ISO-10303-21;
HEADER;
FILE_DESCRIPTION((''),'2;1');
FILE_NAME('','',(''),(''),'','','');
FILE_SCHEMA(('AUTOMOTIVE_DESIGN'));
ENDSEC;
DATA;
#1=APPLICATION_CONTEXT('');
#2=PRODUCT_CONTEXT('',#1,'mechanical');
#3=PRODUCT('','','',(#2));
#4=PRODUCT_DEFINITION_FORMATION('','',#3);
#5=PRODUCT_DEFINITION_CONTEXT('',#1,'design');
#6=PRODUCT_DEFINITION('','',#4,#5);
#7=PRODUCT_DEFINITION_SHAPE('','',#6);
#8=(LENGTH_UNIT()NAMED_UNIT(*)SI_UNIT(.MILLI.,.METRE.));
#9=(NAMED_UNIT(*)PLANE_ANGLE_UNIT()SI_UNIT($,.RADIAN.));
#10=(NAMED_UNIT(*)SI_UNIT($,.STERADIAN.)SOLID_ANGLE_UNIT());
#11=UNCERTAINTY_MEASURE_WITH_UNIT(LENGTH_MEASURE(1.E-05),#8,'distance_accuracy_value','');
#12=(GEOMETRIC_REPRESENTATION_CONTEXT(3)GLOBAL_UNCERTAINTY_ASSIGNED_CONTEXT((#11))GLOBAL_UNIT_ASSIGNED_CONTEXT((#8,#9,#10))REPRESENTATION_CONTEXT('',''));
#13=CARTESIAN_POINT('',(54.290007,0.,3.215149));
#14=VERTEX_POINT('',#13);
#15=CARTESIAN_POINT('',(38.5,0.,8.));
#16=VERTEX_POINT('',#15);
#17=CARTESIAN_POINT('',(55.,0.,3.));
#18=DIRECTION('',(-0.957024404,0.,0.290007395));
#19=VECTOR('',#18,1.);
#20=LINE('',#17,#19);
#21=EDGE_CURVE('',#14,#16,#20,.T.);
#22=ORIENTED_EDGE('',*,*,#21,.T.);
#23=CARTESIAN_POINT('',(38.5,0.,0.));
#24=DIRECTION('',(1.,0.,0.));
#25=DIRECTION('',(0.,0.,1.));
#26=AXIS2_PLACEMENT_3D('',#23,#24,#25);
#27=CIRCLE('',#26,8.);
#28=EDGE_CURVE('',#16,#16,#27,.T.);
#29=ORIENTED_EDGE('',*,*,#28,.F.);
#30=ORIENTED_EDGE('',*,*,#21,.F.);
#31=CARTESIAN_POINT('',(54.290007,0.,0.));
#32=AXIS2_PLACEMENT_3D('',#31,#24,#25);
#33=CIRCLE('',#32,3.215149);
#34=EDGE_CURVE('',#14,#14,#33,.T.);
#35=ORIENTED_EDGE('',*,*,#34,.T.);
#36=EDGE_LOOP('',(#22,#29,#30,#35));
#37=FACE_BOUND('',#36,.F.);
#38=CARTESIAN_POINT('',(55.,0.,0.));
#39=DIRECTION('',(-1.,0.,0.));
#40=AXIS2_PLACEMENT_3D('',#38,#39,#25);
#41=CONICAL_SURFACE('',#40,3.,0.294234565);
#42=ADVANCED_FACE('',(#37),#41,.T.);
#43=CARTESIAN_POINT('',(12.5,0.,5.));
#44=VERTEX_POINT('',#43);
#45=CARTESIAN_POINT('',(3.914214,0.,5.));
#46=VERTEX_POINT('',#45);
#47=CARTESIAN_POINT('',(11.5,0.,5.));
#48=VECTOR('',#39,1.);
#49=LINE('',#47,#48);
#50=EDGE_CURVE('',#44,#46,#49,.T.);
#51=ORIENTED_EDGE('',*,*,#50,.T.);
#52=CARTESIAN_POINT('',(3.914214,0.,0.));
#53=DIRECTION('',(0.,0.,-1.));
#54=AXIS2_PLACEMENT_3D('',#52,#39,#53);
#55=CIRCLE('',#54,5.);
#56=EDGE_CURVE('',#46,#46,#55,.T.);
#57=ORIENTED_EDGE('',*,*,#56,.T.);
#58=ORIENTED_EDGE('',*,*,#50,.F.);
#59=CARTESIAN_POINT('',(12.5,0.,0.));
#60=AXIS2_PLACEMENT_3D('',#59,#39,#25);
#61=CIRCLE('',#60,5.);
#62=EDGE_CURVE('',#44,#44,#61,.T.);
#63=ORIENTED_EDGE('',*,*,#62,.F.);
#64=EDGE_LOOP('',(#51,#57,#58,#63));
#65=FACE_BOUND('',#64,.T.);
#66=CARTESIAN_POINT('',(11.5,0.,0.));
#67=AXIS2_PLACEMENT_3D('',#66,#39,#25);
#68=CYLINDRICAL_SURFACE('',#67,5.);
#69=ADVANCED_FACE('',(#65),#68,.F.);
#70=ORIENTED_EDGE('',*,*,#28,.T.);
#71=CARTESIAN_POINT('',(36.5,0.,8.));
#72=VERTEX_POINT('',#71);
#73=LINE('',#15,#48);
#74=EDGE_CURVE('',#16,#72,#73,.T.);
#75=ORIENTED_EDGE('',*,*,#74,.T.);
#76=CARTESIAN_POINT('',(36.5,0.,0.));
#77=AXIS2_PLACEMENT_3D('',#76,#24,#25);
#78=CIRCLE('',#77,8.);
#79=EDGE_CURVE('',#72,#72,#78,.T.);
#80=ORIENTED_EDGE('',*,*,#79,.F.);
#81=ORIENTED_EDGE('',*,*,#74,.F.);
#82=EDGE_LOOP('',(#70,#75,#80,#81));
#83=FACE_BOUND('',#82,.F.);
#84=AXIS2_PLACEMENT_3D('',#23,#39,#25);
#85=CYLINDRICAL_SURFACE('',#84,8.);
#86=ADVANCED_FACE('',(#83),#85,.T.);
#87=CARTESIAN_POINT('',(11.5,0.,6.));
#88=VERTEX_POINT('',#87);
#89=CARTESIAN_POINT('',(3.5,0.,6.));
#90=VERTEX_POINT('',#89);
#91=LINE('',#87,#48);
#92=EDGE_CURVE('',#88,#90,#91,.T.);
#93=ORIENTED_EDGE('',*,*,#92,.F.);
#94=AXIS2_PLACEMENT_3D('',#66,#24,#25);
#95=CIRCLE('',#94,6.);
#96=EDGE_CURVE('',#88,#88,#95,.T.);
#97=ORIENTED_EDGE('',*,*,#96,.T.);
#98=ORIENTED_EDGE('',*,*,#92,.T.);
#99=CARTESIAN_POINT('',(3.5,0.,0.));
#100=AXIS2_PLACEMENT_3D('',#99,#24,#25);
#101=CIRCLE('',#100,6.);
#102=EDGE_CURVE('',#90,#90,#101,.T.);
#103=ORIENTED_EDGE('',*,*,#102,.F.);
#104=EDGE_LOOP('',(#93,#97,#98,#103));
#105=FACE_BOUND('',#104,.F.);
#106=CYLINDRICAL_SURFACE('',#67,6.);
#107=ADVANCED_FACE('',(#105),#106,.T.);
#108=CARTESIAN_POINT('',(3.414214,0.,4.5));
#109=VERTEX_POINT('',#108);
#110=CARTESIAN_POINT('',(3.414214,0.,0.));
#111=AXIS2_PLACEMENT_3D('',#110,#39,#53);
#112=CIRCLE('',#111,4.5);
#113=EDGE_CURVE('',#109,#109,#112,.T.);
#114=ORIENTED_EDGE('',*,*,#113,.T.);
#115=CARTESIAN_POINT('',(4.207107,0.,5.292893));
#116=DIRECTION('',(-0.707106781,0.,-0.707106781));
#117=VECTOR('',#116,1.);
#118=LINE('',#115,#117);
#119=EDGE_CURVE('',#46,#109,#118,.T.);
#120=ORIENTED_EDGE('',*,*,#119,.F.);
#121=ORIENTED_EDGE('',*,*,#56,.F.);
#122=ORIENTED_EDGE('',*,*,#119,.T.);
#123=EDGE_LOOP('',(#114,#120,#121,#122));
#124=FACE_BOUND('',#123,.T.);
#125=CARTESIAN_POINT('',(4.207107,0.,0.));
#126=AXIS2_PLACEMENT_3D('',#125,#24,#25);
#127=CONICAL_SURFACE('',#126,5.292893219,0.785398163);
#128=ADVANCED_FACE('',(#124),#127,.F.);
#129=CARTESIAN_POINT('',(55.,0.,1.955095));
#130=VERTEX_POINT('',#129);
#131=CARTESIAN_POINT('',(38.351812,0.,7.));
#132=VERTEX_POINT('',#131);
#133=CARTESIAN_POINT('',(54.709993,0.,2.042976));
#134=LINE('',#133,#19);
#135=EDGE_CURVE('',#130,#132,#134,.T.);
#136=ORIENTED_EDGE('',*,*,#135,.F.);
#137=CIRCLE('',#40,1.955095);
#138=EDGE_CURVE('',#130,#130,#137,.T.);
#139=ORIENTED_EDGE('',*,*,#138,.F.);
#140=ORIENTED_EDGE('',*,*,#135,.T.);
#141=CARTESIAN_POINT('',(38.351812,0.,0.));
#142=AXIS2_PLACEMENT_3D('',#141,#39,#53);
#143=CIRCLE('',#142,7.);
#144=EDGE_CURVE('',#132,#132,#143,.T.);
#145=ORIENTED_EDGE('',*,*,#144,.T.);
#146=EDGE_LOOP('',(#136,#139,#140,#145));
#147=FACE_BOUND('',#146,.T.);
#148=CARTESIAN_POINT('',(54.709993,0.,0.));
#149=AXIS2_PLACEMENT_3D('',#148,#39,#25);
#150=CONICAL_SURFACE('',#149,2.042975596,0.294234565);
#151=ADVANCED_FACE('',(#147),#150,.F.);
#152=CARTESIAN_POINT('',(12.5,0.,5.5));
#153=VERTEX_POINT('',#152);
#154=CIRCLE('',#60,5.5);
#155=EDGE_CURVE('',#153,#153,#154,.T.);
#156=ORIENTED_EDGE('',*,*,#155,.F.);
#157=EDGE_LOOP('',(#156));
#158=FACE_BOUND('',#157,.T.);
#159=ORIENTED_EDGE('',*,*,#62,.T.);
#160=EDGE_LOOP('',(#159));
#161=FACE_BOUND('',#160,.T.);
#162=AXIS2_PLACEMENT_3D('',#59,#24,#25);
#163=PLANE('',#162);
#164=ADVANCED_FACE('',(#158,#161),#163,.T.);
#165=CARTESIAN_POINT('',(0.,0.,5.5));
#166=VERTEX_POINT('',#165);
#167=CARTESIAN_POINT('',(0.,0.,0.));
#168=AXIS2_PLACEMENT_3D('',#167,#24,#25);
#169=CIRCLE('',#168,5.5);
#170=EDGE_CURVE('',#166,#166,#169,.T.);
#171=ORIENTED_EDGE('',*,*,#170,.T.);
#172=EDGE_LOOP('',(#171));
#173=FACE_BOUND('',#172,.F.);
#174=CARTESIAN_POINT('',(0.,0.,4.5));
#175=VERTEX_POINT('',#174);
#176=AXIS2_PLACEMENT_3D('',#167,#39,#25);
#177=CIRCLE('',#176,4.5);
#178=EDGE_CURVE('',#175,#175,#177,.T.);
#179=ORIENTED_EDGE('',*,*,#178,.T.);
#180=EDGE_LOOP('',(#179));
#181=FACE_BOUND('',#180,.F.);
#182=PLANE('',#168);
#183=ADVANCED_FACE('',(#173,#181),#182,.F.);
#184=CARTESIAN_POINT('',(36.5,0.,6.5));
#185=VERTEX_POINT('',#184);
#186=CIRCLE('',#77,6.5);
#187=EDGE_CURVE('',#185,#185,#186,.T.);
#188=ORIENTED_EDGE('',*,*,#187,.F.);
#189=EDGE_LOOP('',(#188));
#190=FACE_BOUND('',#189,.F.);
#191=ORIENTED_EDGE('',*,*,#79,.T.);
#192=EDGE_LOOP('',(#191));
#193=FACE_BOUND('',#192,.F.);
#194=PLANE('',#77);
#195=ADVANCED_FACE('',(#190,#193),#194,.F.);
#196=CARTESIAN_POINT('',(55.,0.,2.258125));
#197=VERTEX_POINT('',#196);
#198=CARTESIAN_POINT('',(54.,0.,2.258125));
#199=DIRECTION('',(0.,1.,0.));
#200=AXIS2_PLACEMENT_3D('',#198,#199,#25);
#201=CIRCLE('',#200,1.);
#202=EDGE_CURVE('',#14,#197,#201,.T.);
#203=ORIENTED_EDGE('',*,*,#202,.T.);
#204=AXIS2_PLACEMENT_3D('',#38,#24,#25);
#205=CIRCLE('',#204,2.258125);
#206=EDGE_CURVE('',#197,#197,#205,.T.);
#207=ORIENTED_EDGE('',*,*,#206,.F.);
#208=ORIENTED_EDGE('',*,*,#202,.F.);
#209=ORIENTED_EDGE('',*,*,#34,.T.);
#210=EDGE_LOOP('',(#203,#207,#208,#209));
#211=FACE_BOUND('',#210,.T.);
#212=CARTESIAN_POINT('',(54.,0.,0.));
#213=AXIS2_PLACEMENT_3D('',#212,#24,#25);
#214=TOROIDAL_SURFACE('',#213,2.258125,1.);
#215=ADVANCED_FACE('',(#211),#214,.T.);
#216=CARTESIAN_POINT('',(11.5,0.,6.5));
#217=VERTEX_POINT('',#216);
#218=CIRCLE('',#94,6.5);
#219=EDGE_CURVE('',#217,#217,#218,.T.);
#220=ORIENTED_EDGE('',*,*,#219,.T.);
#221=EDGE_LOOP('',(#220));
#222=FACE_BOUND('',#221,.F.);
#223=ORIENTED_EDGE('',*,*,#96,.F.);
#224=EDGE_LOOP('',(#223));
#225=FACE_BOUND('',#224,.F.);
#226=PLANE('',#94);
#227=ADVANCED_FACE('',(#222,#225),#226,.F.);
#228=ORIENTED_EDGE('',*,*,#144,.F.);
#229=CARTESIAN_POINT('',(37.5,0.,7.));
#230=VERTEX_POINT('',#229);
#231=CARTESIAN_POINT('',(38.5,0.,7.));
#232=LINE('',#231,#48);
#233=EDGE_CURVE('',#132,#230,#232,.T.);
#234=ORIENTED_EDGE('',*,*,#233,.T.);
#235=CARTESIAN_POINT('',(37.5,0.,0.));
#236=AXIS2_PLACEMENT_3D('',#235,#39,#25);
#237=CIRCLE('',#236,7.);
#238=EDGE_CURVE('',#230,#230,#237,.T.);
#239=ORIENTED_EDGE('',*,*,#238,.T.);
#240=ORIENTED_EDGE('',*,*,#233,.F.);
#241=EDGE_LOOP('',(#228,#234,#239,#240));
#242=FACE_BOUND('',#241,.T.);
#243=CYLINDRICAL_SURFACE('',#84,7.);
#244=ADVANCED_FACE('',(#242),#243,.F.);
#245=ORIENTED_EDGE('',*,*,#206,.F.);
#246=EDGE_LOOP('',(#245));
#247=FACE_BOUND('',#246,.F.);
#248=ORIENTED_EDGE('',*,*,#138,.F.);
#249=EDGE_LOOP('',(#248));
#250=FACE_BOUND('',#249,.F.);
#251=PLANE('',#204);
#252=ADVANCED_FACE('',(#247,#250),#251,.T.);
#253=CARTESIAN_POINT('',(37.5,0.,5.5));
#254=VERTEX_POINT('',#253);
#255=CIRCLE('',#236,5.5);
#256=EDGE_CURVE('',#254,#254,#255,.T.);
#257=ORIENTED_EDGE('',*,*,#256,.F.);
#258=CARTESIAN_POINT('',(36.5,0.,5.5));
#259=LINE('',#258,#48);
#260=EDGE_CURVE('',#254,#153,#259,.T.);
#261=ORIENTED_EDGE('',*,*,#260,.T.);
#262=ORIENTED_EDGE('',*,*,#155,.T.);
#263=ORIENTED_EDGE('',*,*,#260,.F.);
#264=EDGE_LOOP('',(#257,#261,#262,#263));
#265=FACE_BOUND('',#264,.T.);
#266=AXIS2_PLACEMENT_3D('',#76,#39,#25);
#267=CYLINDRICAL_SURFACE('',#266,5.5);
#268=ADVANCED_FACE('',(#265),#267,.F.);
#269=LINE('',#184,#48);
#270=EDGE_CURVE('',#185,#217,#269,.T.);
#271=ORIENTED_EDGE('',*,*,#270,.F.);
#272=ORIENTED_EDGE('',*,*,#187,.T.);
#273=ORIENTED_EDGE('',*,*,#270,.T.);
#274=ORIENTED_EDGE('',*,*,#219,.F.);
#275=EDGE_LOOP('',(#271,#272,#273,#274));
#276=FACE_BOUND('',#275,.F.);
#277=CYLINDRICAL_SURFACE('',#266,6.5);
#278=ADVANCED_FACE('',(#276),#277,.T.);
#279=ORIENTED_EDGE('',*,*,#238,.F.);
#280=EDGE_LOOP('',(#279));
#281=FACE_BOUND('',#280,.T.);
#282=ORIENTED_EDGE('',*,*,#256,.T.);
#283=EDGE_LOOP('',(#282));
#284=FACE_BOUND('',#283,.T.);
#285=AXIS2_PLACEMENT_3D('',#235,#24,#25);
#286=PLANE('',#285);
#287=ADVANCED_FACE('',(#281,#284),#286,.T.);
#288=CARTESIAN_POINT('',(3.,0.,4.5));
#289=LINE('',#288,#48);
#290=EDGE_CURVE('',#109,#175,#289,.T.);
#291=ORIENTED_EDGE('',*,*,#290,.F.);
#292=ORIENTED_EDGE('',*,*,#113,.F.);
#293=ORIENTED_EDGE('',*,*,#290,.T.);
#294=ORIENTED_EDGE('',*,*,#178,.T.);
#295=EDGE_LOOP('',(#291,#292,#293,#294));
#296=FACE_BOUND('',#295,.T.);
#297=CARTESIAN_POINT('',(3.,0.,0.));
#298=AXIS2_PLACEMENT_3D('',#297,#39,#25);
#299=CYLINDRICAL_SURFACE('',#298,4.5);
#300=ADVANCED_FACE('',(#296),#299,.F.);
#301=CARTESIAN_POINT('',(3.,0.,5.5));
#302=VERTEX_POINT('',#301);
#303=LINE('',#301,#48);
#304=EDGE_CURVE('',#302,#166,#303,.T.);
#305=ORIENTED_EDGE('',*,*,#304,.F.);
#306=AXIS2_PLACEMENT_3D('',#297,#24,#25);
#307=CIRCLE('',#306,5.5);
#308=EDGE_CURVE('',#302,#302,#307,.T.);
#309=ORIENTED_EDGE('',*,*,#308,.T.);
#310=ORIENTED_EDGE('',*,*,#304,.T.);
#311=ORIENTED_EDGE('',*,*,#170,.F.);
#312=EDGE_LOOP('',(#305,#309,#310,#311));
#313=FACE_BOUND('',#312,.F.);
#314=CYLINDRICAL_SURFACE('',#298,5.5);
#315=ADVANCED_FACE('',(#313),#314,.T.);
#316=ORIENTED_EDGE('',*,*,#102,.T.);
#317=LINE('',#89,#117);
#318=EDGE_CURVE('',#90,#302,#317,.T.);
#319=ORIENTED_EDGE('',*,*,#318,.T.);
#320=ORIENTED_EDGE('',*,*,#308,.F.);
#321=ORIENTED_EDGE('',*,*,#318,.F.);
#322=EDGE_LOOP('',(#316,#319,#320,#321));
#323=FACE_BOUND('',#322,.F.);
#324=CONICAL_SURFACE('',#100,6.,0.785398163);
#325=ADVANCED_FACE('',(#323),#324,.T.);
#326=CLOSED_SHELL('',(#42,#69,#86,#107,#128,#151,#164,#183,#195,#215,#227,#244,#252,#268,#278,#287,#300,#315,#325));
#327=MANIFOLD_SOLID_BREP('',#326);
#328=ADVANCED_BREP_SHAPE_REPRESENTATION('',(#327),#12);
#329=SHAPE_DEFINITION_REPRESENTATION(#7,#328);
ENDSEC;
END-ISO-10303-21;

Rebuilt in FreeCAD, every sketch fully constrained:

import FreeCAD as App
import Part
import Sketcher

V = App.Vector
Q = App.Units.Quantity


def edges_at(feature, points):
    """Names of the edges that pass closest to the given points."""
    edges = feature.Shape.Edges
    near = lambda p: min(range(len(edges)), key=lambda i: edges[i].distToShape(Part.Vertex(*p))[0])
    return sorted({f"Edge{near(p) + 1}" for p in points})


def faces_at(feature, points):
    """Names of the faces that lie closest to the given points."""
    faces = feature.Shape.Faces
    near = lambda p: min(range(len(faces)), key=lambda i: faces[i].distToShape(Part.Vertex(*p))[0])
    return sorted({f"Face{near(p) + 1}" for p in points})

doc = App.newDocument("Part")
body = doc.addObject("PartDesign::Body", "Body")

# Sketch on XZ plane
sketch1 = body.newObject("Sketcher::SketchObject", "Sketch")
sketch1.AttachmentSupport = (doc.getObject("XZ_Plane"), [""])
sketch1.MapMode = "FlatFace"
sketch1.addGeometry(Part.LineSegment(V(0, 5.5, 0), V(0, 0, 0)), False)
sketch1.addGeometry(Part.LineSegment(V(0, 0, 0), V(55, 0, 0)), False)
sketch1.addGeometry(Part.LineSegment(V(55, 0, 0), V(55, 3, 0)), False)
sketch1.addGeometry(Part.LineSegment(V(55, 3, 0), V(38.5, 8, 0)), False)
sketch1.addGeometry(Part.LineSegment(V(38.5, 8, 0), V(36.5, 8, 0)), False)
sketch1.addGeometry(Part.LineSegment(V(36.5, 8, 0), V(36.5, 6.5, 0)), False)
sketch1.addGeometry(Part.LineSegment(V(36.5, 6.5, 0), V(11.5, 6.5, 0)), False)
sketch1.addGeometry(Part.LineSegment(V(11.5, 6.5, 0), V(11.5, 6, 0)), False)
sketch1.addGeometry(Part.LineSegment(V(11.5, 6, 0), V(3.5, 6, 0)), False)
sketch1.addGeometry(Part.LineSegment(V(3.5, 6, 0), V(3, 5.5, 0)), False)
sketch1.addGeometry(Part.LineSegment(V(3, 5.5, 0), V(0, 5.5, 0)), False)
sketch1.addConstraint(Sketcher.Constraint("Coincident", 0, 2, 1, 1))
sketch1.addConstraint(Sketcher.Constraint("Coincident", 1, 2, 2, 1))
sketch1.addConstraint(Sketcher.Constraint("Coincident", 2, 2, 3, 1))
sketch1.addConstraint(Sketcher.Constraint("Coincident", 3, 2, 4, 1))
sketch1.addConstraint(Sketcher.Constraint("Coincident", 4, 2, 5, 1))
sketch1.addConstraint(Sketcher.Constraint("Coincident", 5, 2, 6, 1))
sketch1.addConstraint(Sketcher.Constraint("Coincident", 6, 2, 7, 1))
sketch1.addConstraint(Sketcher.Constraint("Coincident", 7, 2, 8, 1))
sketch1.addConstraint(Sketcher.Constraint("Coincident", 8, 2, 9, 1))
sketch1.addConstraint(Sketcher.Constraint("Coincident", 9, 2, 10, 1))
sketch1.addConstraint(Sketcher.Constraint("Coincident", 10, 2, 0, 1))
sketch1.addConstraint(Sketcher.Constraint("Vertical", 0))
sketch1.addConstraint(Sketcher.Constraint("Horizontal", 1))
sketch1.addConstraint(Sketcher.Constraint("Vertical", 2))
sketch1.addConstraint(Sketcher.Constraint("Horizontal", 4))
sketch1.addConstraint(Sketcher.Constraint("Vertical", 5))
sketch1.addConstraint(Sketcher.Constraint("Horizontal", 6))
sketch1.addConstraint(Sketcher.Constraint("Vertical", 7))
sketch1.addConstraint(Sketcher.Constraint("Horizontal", 8))
sketch1.addConstraint(Sketcher.Constraint("Horizontal", 10))
sketch1.addConstraint(Sketcher.Constraint("Coincident", 0, 2, -1, 1))
sketch1.addConstraint(Sketcher.Constraint("Equal", 10, 2))
sketch1.addConstraint(Sketcher.Constraint("DistanceX", 1, 1, 1, 2, Q("55 mm")))
sketch1.addConstraint(Sketcher.Constraint("DistanceX", 4, 2, 4, 1, Q("2 mm")))
sketch1.addConstraint(Sketcher.Constraint("DistanceX", 6, 2, 6, 1, Q("25 mm")))
sketch1.addConstraint(Sketcher.Constraint("DistanceX", 8, 2, 8, 1, Q("8 mm")))
sketch1.addConstraint(Sketcher.Constraint("DistanceX", 10, 2, 10, 1, Q("3 mm")))
sketch1.addConstraint(Sketcher.Constraint("Angle", 9, Q("-135 deg")))
sketch1.addConstraint(Sketcher.Constraint("DistanceY", 0, 2, 0, 1, Q("5.5 mm")))
sketch1.addConstraint(Sketcher.Constraint("DistanceY", 5, 2, 5, 1, Q("1.5 mm")))
sketch1.addConstraint(Sketcher.Constraint("DistanceY", 7, 2, 7, 1, Q("0.5 mm")))
sketch1.addConstraint(Sketcher.Constraint("DistanceY", -1, 1, 3, 2, Q("8 mm")))
revolution = body.newObject("PartDesign::Revolution", "Revolution")
revolution.Profile = sketch1
revolution.ReferenceAxis = (sketch1, ["H_Axis"])
revolution.Angle = 360
doc.recompute()

thickness = body.newObject("PartDesign::Thickness", "Thickness")
thickness.Base = (revolution, faces_at(revolution, [(0, 0, 0), (55, 0, 0)]))
thickness.Value = 1
thickness.Reversed = True
thickness.Join = "Intersection"
doc.recompute()

fillet = body.newObject("PartDesign::Fillet", "Fillet")
fillet.Base = (thickness, edges_at(thickness, [(55, 0, -3)]))
fillet.Radius = 1

doc.recompute()
